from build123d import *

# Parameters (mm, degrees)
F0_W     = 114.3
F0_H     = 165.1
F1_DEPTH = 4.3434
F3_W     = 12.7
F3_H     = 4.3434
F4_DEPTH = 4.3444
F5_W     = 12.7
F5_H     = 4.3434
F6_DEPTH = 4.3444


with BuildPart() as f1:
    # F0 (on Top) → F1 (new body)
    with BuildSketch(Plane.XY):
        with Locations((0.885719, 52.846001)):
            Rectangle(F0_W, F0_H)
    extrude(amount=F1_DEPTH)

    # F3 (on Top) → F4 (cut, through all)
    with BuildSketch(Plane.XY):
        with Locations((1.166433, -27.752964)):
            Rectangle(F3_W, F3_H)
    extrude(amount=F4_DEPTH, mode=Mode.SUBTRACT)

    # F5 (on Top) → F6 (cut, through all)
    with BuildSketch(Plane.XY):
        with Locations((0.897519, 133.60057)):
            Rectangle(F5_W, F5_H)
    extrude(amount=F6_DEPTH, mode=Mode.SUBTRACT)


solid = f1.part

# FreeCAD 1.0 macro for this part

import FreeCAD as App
import Part
import Sketcher
from FreeCAD import Vector
Q = App.Units.Quantity


def add_polygon(sketch, points):
    """Adds a closed chain of lines whose ends are joined by coincident constraints."""
    first, n = sketch.GeometryCount, len(points)
    for a, b in zip(points, points[1:] + points[:1]):
        sketch.addGeometry(Part.LineSegment(App.Vector(*a, 0), App.Vector(*b, 0)), False)
    for i in range(n):
        sketch.addConstraint(Sketcher.Constraint("Coincident", first + i, 2, first + (i + 1) % n, 1))

doc = App.newDocument("Part")
body = doc.addObject("PartDesign::Body", "Body")

# Sketch on XY plane
sketch1 = body.newObject("Sketcher::SketchObject", "Sketch")
sketch1.AttachmentSupport = (doc.getObject("XY_Plane"), [""])
sketch1.MapMode = "FlatFace"
add_polygon(sketch1, [(-56, 135), (-56, -30), (58, -30), (58, 135)])  # lines 0-3
sketch1.addConstraint([
    Sketcher.Constraint("Vertical", 0),
    Sketcher.Constraint("Horizontal", 1),
    Sketcher.Constraint("Vertical", 2),
    Sketcher.Constraint("Horizontal", 3),
    Sketcher.Constraint("DistanceX", 1, 1, 1, 2, Q("4.5 in")),
    Sketcher.Constraint("DistanceY", 0, 2, 0, 1, Q("6.5 in")),
    Sketcher.Constraint("DistanceY", 0, 2, -1, 1, Q("29.703999 mm")),
    Sketcher.Constraint("DistanceX", 0, 2, -1, 1, Q("56.264281 mm")),
])
pad1 = body.newObject("PartDesign::Pad", "Pad")
pad1.Profile = sketch1
pad1.Length = Q("0.171 in")

# Sketch on XY plane
sketch2 = body.newObject("Sketcher::SketchObject", "Sketch001")
sketch2.AttachmentSupport = (doc.getObject("XY_Plane"), [""])
sketch2.MapMode = "FlatFace"
add_polygon(sketch2, [(-5.2, -25.6), (-5.2, -29.9), (7.5, -29.9), (7.5, -25.6)])  # lines 0-3
sketch2.addConstraint([
    Sketcher.Constraint("Vertical", 0),
    Sketcher.Constraint("Horizontal", 1),
    Sketcher.Constraint("Vertical", 2),
    Sketcher.Constraint("Horizontal", 3),
    Sketcher.Constraint("DistanceX", 1, 1, 1, 2, Q("0.5 in")),
    Sketcher.Constraint("DistanceY", 0, 2, 0, 1, Q("0.171 in")),
    Sketcher.Constraint("DistanceX", 0, 2, -1, 1, Q("5.183567 mm")),
    Sketcher.Constraint("DistanceY", 0, 2, -1, 1, Q("29.924664 mm")),
])
pocket1 = body.newObject("PartDesign::Pocket", "Pocket")
pocket1.Profile = sketch2
pocket1.Type = "ThroughAll"
pocket1.Reversed = True

# Sketch on XY plane
sketch3 = body.newObject("Sketcher::SketchObject", "Sketch002")
sketch3.AttachmentSupport = (doc.getObject("XY_Plane"), [""])
sketch3.MapMode = "FlatFace"
add_polygon(sketch3, [(-5.5, 135.8), (-5.5, 131.4), (7.2, 131.4), (7.2, 135.8)])  # lines 0-3
sketch3.addConstraint([
    Sketcher.Constraint("Vertical", 0),
    Sketcher.Constraint("Horizontal", 1),
    Sketcher.Constraint("Vertical", 2),
    Sketcher.Constraint("Horizontal", 3),
    Sketcher.Constraint("DistanceX", 1, 1, 1, 2, Q("0.5 in")),
    Sketcher.Constraint("DistanceY", 0, 2, 0, 1, Q("0.171 in")),
    Sketcher.Constraint("DistanceX", 0, 2, -1, 1, Q("5.452481 mm")),
    Sketcher.Constraint("DistanceY", -1, 1, 0, 2, Q("131.42887 mm")),
])
pocket2 = body.newObject("PartDesign::Pocket", "Pocket001")
pocket2.Profile = sketch3
pocket2.Type = "ThroughAll"
pocket2.Reversed = True

doc.recompute()
